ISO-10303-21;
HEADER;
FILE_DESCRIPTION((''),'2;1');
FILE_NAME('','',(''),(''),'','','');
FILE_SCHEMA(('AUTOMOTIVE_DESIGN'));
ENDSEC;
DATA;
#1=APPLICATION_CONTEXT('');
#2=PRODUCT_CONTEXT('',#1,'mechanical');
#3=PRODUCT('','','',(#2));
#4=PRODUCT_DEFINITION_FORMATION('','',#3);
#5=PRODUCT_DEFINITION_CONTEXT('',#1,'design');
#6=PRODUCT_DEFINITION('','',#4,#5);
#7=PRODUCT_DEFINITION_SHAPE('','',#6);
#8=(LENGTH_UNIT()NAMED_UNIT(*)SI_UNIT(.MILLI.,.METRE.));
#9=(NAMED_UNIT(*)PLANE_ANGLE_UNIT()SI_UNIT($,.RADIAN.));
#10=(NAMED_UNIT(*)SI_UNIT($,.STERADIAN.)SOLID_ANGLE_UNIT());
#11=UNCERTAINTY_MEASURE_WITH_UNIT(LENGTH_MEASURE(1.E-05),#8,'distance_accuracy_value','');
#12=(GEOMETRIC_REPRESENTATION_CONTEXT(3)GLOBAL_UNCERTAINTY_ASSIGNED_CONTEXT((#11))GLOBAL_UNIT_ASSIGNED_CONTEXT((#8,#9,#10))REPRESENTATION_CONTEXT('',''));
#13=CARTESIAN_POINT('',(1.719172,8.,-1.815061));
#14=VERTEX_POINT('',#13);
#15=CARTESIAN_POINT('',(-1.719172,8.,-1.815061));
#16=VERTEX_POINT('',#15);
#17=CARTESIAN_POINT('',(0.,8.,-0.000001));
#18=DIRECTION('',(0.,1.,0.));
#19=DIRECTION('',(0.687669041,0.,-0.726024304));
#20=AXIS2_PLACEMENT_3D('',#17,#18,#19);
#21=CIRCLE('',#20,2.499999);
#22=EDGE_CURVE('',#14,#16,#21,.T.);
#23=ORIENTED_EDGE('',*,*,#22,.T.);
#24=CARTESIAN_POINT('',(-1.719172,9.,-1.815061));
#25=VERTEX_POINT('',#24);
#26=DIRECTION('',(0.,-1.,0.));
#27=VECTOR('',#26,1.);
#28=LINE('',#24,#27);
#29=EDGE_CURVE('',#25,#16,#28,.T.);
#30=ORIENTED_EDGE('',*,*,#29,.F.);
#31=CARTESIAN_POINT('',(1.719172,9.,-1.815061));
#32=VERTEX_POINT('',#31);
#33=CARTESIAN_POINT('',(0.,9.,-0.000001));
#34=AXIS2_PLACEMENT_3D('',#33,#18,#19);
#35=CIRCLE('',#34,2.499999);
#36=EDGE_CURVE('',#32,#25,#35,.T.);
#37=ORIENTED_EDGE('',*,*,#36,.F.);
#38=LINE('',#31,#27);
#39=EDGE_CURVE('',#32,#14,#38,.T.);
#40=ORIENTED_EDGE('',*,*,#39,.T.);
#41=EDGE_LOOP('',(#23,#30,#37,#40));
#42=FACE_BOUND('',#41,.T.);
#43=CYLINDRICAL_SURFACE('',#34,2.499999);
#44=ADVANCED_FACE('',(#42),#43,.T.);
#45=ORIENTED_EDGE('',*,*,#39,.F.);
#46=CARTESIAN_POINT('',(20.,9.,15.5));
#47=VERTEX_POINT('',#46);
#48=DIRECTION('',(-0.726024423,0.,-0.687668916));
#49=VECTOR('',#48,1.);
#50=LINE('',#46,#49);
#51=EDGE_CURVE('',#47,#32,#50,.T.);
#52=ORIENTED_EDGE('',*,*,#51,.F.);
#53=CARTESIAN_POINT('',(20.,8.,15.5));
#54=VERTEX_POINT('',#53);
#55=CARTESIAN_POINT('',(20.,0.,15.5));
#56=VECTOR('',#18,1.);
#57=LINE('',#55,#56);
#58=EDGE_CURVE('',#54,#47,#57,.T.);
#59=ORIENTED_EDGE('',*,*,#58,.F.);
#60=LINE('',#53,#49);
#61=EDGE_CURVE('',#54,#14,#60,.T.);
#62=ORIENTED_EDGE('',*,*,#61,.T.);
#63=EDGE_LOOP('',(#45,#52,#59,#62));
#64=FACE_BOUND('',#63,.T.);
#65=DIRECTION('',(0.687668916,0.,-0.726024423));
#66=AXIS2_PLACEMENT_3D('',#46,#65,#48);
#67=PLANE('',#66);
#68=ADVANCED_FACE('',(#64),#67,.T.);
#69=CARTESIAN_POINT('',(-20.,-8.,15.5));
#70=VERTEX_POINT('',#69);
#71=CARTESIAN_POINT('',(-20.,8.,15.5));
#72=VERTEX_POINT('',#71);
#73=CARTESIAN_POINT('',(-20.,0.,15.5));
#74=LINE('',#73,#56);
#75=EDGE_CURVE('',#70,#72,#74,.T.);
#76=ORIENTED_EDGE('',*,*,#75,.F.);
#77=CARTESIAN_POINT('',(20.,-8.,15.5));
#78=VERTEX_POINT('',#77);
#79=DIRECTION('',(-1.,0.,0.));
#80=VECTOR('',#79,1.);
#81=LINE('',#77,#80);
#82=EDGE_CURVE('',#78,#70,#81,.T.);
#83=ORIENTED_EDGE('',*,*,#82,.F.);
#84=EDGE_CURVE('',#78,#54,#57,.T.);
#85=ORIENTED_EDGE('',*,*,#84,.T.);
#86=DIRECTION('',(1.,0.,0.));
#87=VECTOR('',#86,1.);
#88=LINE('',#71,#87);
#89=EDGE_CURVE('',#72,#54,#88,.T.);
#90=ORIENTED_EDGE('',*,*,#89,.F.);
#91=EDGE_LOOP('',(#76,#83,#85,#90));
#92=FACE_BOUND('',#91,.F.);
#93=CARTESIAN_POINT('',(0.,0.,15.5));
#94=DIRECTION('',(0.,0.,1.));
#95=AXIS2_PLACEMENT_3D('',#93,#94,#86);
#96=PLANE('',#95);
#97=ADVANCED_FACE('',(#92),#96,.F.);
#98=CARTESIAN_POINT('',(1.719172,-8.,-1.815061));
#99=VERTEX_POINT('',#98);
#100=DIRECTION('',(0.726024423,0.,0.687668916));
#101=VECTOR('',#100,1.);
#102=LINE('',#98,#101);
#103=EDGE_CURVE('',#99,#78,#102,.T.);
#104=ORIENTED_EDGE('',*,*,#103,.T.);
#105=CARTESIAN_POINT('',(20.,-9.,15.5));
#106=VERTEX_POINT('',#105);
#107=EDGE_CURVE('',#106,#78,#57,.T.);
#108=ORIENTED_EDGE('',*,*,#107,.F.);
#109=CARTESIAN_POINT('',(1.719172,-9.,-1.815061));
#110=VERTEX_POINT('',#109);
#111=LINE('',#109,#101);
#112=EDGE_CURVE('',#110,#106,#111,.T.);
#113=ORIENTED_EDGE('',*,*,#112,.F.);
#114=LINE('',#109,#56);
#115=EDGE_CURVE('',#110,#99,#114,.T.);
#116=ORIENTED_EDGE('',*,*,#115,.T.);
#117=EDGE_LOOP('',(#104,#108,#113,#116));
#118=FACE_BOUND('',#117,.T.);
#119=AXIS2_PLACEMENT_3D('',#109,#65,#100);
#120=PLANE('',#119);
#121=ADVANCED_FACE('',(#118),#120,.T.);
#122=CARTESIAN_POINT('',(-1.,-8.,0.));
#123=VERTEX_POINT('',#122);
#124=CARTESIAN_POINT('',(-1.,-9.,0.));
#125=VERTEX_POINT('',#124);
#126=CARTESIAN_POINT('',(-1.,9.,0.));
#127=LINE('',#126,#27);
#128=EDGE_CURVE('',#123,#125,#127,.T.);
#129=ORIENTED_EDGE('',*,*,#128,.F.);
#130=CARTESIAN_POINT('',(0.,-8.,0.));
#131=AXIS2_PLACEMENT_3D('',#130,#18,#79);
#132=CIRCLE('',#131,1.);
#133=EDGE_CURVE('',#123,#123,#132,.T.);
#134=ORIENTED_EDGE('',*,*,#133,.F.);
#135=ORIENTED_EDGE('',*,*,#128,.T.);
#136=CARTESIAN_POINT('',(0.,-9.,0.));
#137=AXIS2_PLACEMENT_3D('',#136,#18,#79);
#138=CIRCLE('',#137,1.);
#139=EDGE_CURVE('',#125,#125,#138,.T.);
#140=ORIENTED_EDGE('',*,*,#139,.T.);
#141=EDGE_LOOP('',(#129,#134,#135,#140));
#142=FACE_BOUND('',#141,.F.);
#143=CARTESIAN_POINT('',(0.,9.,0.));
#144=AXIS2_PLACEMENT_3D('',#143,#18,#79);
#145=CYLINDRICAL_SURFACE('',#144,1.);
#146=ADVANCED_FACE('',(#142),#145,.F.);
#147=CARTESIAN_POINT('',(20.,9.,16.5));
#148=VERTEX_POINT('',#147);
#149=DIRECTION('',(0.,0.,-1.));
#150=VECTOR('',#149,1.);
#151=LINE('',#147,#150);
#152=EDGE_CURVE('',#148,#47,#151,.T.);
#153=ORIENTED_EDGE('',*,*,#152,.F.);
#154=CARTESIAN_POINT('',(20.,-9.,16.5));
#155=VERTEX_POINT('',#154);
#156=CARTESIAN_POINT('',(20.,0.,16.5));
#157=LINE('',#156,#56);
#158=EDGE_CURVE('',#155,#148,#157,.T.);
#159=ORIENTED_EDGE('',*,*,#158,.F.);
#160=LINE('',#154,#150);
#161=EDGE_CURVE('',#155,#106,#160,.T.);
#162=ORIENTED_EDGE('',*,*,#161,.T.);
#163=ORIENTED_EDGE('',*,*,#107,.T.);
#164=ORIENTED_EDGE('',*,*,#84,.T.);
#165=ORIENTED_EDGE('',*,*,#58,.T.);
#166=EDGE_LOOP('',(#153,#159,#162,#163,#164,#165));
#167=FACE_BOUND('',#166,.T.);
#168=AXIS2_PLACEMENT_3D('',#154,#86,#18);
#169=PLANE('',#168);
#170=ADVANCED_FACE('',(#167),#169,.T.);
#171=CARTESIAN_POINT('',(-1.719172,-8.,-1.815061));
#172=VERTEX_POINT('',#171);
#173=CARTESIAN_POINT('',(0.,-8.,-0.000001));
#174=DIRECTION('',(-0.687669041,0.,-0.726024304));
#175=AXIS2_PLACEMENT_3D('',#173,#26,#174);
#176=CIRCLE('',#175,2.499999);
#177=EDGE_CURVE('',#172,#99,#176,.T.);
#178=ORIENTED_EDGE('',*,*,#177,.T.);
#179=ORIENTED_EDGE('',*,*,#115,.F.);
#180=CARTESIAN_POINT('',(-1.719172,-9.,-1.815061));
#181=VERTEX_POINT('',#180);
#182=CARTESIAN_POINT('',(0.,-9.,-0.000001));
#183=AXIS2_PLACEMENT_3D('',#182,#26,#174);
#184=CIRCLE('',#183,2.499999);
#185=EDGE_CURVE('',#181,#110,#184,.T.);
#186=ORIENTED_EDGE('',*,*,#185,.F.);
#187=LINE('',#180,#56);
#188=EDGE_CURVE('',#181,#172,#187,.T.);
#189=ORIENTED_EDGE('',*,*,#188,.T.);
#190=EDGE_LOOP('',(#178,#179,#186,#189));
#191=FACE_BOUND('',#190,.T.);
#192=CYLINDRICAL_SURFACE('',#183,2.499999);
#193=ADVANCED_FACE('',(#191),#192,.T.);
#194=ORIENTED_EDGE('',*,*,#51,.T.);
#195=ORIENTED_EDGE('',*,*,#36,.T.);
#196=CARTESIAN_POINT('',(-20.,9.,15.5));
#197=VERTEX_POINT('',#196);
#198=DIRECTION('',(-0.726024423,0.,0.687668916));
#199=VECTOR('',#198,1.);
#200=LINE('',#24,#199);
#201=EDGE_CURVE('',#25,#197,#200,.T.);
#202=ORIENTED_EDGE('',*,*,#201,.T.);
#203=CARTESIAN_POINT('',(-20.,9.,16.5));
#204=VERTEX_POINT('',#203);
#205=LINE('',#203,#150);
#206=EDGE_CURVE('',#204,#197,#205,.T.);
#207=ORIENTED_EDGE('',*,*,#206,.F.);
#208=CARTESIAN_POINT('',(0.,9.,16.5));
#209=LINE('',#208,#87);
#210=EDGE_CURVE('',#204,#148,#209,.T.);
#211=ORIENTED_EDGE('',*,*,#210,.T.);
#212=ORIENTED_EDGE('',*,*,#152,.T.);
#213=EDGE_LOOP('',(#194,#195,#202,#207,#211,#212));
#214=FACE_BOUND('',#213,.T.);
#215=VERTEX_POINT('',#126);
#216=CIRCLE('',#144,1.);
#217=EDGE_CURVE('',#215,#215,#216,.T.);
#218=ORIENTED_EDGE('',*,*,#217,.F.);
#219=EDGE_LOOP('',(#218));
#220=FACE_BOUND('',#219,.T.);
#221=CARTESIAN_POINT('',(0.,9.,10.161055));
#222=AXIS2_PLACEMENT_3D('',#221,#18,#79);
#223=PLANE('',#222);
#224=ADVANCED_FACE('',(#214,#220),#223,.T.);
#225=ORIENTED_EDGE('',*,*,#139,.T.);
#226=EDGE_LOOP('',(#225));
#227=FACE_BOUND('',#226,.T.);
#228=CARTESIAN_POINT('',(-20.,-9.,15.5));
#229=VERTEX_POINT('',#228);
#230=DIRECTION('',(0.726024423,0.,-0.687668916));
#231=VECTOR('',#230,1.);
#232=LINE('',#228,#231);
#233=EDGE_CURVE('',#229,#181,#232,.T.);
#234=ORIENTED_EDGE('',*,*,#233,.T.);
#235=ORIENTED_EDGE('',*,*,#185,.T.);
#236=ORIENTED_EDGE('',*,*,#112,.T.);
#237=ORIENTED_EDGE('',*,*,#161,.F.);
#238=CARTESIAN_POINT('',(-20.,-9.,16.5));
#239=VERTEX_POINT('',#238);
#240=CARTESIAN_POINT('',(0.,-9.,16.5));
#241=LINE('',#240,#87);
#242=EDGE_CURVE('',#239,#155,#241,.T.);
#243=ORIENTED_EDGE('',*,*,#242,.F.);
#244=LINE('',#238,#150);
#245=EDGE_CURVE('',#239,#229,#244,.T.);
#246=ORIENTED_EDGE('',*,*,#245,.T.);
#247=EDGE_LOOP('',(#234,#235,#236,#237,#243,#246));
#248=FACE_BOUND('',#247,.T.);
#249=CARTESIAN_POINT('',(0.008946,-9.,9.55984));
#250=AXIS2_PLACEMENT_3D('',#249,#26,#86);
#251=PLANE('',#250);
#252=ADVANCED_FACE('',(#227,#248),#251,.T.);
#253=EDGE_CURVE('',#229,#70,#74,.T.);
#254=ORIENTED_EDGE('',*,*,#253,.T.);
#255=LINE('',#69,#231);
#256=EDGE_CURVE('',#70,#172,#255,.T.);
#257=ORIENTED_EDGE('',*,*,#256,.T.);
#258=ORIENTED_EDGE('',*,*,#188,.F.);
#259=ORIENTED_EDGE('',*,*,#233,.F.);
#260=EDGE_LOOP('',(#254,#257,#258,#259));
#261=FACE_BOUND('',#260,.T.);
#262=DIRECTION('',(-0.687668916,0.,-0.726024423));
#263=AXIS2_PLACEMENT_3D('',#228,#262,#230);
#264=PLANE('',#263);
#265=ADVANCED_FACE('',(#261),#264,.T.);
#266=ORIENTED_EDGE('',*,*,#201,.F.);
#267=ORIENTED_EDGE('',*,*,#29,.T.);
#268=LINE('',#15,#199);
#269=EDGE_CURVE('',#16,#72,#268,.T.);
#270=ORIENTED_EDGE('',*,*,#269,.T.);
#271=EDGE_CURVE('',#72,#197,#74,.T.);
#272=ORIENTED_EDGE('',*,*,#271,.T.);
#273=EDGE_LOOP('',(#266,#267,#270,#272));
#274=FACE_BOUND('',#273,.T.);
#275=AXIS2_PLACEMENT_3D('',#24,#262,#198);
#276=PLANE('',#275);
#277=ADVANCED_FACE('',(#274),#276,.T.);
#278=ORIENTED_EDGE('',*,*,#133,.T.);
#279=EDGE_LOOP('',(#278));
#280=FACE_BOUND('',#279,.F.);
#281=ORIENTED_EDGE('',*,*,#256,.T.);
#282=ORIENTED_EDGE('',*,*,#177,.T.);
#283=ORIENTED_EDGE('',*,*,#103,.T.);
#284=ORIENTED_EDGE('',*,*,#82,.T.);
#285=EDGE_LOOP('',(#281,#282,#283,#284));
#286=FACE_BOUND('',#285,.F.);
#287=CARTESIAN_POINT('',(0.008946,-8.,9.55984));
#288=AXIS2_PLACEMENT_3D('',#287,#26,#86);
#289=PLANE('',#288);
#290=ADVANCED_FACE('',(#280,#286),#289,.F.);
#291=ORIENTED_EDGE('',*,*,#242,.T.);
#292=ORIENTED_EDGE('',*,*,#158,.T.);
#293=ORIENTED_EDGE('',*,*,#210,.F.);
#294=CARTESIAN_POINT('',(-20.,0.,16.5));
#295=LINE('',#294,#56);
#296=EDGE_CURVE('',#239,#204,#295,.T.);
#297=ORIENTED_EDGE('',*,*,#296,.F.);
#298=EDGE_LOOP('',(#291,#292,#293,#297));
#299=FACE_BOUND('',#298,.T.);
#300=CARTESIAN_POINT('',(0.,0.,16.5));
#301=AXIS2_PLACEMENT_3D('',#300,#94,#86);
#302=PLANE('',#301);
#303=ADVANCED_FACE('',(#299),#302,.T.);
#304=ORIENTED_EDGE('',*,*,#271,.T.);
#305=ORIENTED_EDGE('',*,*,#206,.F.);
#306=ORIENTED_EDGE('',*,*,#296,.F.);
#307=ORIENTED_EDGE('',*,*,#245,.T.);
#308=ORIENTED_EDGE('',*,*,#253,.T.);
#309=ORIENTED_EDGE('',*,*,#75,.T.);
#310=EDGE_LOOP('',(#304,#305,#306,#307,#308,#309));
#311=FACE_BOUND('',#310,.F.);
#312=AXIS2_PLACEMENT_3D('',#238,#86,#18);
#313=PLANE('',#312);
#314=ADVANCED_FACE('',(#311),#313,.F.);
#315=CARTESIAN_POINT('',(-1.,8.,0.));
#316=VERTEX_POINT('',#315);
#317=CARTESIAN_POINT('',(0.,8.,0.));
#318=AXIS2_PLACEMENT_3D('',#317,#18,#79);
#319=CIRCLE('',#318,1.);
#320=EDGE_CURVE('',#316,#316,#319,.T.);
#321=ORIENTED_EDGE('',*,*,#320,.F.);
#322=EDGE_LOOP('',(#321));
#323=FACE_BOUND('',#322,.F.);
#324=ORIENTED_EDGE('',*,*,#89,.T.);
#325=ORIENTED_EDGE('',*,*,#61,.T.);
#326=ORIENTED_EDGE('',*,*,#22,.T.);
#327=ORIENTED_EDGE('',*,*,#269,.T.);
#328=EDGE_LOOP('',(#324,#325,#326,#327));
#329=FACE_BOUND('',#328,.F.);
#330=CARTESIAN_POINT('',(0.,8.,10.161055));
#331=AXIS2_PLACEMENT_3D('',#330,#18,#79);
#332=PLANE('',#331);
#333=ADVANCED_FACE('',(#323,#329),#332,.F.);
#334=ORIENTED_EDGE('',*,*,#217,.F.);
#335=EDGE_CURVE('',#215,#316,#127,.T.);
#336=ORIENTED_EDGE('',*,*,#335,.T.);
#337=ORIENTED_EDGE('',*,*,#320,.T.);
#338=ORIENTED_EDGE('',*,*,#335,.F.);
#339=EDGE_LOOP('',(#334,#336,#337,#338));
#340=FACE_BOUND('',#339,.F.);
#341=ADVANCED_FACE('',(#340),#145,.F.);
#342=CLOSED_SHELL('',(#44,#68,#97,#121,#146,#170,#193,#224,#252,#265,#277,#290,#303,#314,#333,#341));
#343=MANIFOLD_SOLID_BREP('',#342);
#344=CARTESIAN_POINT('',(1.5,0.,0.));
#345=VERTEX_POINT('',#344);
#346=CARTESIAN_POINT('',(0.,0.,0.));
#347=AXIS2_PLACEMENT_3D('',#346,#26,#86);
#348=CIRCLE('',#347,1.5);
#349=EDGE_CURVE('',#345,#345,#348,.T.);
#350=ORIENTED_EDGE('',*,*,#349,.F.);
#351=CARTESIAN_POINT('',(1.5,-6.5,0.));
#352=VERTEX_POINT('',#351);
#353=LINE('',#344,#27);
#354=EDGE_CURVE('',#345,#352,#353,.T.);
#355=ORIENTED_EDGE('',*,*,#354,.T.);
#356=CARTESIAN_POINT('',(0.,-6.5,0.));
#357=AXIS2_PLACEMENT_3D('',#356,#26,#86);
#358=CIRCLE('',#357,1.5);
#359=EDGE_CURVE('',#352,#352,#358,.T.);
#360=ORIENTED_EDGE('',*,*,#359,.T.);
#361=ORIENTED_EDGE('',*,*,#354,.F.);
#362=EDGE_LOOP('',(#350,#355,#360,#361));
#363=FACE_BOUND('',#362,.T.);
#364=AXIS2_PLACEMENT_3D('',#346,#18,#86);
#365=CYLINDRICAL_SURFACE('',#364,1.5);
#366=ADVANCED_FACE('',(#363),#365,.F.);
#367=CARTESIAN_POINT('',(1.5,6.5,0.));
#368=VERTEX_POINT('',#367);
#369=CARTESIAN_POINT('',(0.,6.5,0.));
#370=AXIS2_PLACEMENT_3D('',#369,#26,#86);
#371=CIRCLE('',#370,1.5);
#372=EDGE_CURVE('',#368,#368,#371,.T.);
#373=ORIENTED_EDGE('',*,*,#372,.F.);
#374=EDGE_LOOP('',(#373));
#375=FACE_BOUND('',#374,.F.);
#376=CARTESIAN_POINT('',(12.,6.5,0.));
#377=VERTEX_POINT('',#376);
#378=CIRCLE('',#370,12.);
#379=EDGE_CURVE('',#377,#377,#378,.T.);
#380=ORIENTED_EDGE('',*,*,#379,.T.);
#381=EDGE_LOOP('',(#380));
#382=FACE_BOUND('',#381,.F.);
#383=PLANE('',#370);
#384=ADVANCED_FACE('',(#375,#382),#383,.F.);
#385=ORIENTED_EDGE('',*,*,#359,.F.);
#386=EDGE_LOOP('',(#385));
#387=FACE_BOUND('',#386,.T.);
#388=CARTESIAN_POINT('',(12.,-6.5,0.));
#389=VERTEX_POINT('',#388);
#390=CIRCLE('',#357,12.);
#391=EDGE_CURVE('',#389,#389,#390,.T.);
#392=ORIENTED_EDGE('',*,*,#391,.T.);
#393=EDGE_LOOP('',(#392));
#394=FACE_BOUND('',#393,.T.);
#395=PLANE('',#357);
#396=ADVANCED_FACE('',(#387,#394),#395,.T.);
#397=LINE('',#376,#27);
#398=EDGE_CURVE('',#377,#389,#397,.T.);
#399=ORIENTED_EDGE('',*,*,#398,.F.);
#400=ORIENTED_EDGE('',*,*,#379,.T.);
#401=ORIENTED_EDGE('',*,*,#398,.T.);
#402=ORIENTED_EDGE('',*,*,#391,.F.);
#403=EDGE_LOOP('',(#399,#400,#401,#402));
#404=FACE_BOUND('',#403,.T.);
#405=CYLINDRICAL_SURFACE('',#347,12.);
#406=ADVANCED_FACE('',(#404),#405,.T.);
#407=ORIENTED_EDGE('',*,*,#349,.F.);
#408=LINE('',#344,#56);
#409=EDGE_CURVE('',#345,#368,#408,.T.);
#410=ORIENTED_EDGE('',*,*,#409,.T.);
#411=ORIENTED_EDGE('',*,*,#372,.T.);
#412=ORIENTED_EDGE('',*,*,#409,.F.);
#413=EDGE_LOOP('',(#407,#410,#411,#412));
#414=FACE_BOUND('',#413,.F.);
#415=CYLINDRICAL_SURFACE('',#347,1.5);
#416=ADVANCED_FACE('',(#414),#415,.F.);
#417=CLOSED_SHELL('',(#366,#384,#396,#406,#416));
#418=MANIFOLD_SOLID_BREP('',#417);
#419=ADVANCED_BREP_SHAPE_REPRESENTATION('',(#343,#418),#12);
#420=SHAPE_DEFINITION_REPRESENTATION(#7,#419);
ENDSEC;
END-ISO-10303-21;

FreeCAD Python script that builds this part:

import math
import FreeCAD as App
import Part
import Sketcher
Q = App.Units.Quantity

doc = App.newDocument("Part")
body = doc.addObject("PartDesign::Body", "Body")

# Sketch on XZ plane
sketch1 = doc.addObject("Sketcher::SketchObject", "Sketch")
body.addObject(sketch1)
sketch1.AttachmentSupport = (doc.XZ_Plane, [""])
sketch1.MapMode = "FlatFace"
sketch1.addGeometry([
    Part.Circle(App.Vector(0, 0, 0), App.Vector(0, 0, 1), 12),
    Part.Circle(App.Vector(0, 0, 0), App.Vector(0, 0, 1), 1.5),
], False)
sketch1.addConstraint([
    Sketcher.Constraint("Coincident", 0, 3, -1, 1),
    Sketcher.Constraint("Coincident", 1, 3, -1, 1),
    Sketcher.Constraint("Diameter", 0, Q("24 mm")),
    Sketcher.Constraint("Diameter", 1, Q("3 mm")),
])
pad1 = doc.addObject("PartDesign::Pad", "Pad")
body.addObject(pad1)
pad1.Profile = sketch1
pad1.Type = "TwoLengths"
pad1.Length = 6.5
pad1.Length2 = 6.5
body2 = doc.addObject("PartDesign::Body", "Body001")

# Sketch on XY plane
sketch2 = doc.addObject("Sketcher::SketchObject", "Sketch001")
body2.addObject(sketch2)
sketch2.AttachmentSupport = (doc.getObject("XY_Plane001"), [""])
sketch2.MapMode = "FlatFace"
sketch2.AttachmentOffset = App.Placement(App.Vector(0, 0, 16.5), App.Rotation())
sketch2.addGeometry([
    Part.LineSegment(App.Vector(-20, 9, 0), App.Vector(-20, -9, 0)),
    Part.LineSegment(App.Vector(-20, -9, 0), App.Vector(20, -9, 0)),
    Part.LineSegment(App.Vector(20, -9, 0), App.Vector(20, 9, 0)),
    Part.LineSegment(App.Vector(20, 9, 0), App.Vector(-20, 9, 0)),
], False)
sketch2.addConstraint([
    Sketcher.Constraint("Coincident", 0, 2, 1, 1),
    Sketcher.Constraint("Coincident", 1, 2, 2, 1),
    Sketcher.Constraint("Coincident", 2, 2, 3, 1),
    Sketcher.Constraint("Coincident", 3, 2, 0, 1),
    Sketcher.Constraint("Vertical", 0),
    Sketcher.Constraint("Horizontal", 1),
    Sketcher.Constraint("Vertical", 2),
    Sketcher.Constraint("Horizontal", 3),
    Sketcher.Constraint("Symmetric", 0, 2, 2, 2, -1, 1),
    Sketcher.Constraint("DistanceX", 1, 1, 1, 2, Q("40 mm")),
    Sketcher.Constraint("DistanceY", 0, 2, 0, 1, Q("18 mm")),
])
pad2 = doc.addObject("PartDesign::Pad", "Pad001")
body2.addObject(pad2)
pad2.Profile = sketch2
pad2.Length = 1
pad2.Reversed = True

# Sketch on XZ plane
sketch3 = doc.addObject("Sketcher::SketchObject", "Sketch002")
body2.addObject(sketch3)
sketch3.AttachmentSupport = (doc.getObject("XZ_Plane001"), [""])
sketch3.MapMode = "FlatFace"
sketch3.AttachmentOffset = App.Placement(App.Vector(0, 0, 9), App.Rotation())
sketch3.addGeometry([
    Part.LineSegment(App.Vector(1.719172, -1.815061, 0), App.Vector(20, 15.5, 0)),
    Part.LineSegment(App.Vector(20, 15.5, 0), App.Vector(-20, 15.5, 0)),
    Part.LineSegment(App.Vector(-20, 15.5, 0), App.Vector(-1.719172, -1.815061, 0)),
    Part.ArcOfCircle(Part.Circle(App.Vector(0, -0.000001, 0), App.Vector(0, 0, 1), 2.499999), math.radians(-133.445875), math.radians(-46.554125)),
], False)
sketch3.addConstraint([
    Sketcher.Constraint("Coincident", 0, 2, 1, 1),
    Sketcher.Constraint("Coincident", 1, 2, 2, 1),
    Sketcher.Constraint("Tangent", 2, 2, 3, 1),
    Sketcher.Constraint("Tangent", 3, 2, 0, 1),
    Sketcher.Constraint("Horizontal", 1),
    Sketcher.Constraint("Coincident", 3, 3, -1, 1),
    Sketcher.Constraint("Horizontal", 2, 2, 3, 2),
    Sketcher.Constraint("Radius", 3, Q("2.499999 mm")),
    Sketcher.Constraint("DistanceX", 1, 2, 1, 1, Q("40 mm")),
    Sketcher.Constraint("DistanceY", -1, 1, 0, 2, Q("15.5 mm")),
])
pad3 = doc.addObject("PartDesign::Pad", "Pad002")
body2.addObject(pad3)
pad3.Profile = sketch3
pad3.Length = 1
pad3.Reversed = True

# Sketch on XZ plane
sketch4 = doc.addObject("Sketcher::SketchObject", "Sketch003")
body2.addObject(sketch4)
sketch4.AttachmentSupport = (doc.getObject("XZ_Plane001"), [""])
sketch4.MapMode = "FlatFace"
sketch4.AttachmentOffset = App.Placement(App.Vector(0, 0, -9), App.Rotation())
sketch4.addGeometry([
    Part.ArcOfCircle(Part.Circle(App.Vector(0, -0.000001, 0), App.Vector(0, 0, 1), 2.499999), math.radians(-133.445875), math.radians(-46.554125)),
    Part.LineSegment(App.Vector(-1.719172, -1.815061, 0), App.Vector(-20, 15.5, 0)),
    Part.LineSegment(App.Vector(-20, 15.5, 0), App.Vector(20, 15.5, 0)),
    Part.LineSegment(App.Vector(20, 15.5, 0), App.Vector(1.719172, -1.815061, 0)),
], False)
sketch4.addConstraint([
    Sketcher.Constraint("Tangent", 0, 1, 1, 1),
    Sketcher.Constraint("Coincident", 1, 2, 2, 1),
    Sketcher.Constraint("Coincident", 2, 2, 3, 1),
    Sketcher.Constraint("Tangent", 3, 2, 0, 2),
    Sketcher.Constraint("Horizontal", 2),
    Sketcher.Constraint("Coincident", 0, 3, -1, 1),
    Sketcher.Constraint("Horizontal", 0, 1, 3, 2),
    Sketcher.Constraint("Radius", 0, Q("2.499999 mm")),
    Sketcher.Constraint("DistanceX", 2, 1, 2, 2, Q("40 mm")),
    Sketcher.Constraint("DistanceY", -1, 1, 1, 2, Q("15.5 mm")),
])
pad4 = doc.addObject("PartDesign::Pad", "Pad003")
body2.addObject(pad4)
pad4.Profile = sketch4
pad4.Length = 1

# Sketch on XZ plane
sketch5 = doc.addObject("Sketcher::SketchObject", "Sketch004")
body2.addObject(sketch5)
sketch5.AttachmentSupport = (doc.getObject("XZ_Plane001"), [""])
sketch5.MapMode = "FlatFace"
sketch5.AttachmentOffset = App.Placement(App.Vector(0, 0, -9), App.Rotation())
sketch5.addGeometry(Part.Circle(App.Vector(0, 0, 0), App.Vector(0, 0, 1), 1), False)
sketch5.addConstraint([
    Sketcher.Constraint("Coincident", 0, 3, -1, 1),
    Sketcher.Constraint("Diameter", 0, Q("2 mm")),
])
pocket1 = doc.addObject("PartDesign::Pocket", "Pocket")
body2.addObject(pocket1)
pocket1.Profile = sketch5
pocket1.Type = "ThroughAll"
pocket1.Reversed = True

doc.recompute()
